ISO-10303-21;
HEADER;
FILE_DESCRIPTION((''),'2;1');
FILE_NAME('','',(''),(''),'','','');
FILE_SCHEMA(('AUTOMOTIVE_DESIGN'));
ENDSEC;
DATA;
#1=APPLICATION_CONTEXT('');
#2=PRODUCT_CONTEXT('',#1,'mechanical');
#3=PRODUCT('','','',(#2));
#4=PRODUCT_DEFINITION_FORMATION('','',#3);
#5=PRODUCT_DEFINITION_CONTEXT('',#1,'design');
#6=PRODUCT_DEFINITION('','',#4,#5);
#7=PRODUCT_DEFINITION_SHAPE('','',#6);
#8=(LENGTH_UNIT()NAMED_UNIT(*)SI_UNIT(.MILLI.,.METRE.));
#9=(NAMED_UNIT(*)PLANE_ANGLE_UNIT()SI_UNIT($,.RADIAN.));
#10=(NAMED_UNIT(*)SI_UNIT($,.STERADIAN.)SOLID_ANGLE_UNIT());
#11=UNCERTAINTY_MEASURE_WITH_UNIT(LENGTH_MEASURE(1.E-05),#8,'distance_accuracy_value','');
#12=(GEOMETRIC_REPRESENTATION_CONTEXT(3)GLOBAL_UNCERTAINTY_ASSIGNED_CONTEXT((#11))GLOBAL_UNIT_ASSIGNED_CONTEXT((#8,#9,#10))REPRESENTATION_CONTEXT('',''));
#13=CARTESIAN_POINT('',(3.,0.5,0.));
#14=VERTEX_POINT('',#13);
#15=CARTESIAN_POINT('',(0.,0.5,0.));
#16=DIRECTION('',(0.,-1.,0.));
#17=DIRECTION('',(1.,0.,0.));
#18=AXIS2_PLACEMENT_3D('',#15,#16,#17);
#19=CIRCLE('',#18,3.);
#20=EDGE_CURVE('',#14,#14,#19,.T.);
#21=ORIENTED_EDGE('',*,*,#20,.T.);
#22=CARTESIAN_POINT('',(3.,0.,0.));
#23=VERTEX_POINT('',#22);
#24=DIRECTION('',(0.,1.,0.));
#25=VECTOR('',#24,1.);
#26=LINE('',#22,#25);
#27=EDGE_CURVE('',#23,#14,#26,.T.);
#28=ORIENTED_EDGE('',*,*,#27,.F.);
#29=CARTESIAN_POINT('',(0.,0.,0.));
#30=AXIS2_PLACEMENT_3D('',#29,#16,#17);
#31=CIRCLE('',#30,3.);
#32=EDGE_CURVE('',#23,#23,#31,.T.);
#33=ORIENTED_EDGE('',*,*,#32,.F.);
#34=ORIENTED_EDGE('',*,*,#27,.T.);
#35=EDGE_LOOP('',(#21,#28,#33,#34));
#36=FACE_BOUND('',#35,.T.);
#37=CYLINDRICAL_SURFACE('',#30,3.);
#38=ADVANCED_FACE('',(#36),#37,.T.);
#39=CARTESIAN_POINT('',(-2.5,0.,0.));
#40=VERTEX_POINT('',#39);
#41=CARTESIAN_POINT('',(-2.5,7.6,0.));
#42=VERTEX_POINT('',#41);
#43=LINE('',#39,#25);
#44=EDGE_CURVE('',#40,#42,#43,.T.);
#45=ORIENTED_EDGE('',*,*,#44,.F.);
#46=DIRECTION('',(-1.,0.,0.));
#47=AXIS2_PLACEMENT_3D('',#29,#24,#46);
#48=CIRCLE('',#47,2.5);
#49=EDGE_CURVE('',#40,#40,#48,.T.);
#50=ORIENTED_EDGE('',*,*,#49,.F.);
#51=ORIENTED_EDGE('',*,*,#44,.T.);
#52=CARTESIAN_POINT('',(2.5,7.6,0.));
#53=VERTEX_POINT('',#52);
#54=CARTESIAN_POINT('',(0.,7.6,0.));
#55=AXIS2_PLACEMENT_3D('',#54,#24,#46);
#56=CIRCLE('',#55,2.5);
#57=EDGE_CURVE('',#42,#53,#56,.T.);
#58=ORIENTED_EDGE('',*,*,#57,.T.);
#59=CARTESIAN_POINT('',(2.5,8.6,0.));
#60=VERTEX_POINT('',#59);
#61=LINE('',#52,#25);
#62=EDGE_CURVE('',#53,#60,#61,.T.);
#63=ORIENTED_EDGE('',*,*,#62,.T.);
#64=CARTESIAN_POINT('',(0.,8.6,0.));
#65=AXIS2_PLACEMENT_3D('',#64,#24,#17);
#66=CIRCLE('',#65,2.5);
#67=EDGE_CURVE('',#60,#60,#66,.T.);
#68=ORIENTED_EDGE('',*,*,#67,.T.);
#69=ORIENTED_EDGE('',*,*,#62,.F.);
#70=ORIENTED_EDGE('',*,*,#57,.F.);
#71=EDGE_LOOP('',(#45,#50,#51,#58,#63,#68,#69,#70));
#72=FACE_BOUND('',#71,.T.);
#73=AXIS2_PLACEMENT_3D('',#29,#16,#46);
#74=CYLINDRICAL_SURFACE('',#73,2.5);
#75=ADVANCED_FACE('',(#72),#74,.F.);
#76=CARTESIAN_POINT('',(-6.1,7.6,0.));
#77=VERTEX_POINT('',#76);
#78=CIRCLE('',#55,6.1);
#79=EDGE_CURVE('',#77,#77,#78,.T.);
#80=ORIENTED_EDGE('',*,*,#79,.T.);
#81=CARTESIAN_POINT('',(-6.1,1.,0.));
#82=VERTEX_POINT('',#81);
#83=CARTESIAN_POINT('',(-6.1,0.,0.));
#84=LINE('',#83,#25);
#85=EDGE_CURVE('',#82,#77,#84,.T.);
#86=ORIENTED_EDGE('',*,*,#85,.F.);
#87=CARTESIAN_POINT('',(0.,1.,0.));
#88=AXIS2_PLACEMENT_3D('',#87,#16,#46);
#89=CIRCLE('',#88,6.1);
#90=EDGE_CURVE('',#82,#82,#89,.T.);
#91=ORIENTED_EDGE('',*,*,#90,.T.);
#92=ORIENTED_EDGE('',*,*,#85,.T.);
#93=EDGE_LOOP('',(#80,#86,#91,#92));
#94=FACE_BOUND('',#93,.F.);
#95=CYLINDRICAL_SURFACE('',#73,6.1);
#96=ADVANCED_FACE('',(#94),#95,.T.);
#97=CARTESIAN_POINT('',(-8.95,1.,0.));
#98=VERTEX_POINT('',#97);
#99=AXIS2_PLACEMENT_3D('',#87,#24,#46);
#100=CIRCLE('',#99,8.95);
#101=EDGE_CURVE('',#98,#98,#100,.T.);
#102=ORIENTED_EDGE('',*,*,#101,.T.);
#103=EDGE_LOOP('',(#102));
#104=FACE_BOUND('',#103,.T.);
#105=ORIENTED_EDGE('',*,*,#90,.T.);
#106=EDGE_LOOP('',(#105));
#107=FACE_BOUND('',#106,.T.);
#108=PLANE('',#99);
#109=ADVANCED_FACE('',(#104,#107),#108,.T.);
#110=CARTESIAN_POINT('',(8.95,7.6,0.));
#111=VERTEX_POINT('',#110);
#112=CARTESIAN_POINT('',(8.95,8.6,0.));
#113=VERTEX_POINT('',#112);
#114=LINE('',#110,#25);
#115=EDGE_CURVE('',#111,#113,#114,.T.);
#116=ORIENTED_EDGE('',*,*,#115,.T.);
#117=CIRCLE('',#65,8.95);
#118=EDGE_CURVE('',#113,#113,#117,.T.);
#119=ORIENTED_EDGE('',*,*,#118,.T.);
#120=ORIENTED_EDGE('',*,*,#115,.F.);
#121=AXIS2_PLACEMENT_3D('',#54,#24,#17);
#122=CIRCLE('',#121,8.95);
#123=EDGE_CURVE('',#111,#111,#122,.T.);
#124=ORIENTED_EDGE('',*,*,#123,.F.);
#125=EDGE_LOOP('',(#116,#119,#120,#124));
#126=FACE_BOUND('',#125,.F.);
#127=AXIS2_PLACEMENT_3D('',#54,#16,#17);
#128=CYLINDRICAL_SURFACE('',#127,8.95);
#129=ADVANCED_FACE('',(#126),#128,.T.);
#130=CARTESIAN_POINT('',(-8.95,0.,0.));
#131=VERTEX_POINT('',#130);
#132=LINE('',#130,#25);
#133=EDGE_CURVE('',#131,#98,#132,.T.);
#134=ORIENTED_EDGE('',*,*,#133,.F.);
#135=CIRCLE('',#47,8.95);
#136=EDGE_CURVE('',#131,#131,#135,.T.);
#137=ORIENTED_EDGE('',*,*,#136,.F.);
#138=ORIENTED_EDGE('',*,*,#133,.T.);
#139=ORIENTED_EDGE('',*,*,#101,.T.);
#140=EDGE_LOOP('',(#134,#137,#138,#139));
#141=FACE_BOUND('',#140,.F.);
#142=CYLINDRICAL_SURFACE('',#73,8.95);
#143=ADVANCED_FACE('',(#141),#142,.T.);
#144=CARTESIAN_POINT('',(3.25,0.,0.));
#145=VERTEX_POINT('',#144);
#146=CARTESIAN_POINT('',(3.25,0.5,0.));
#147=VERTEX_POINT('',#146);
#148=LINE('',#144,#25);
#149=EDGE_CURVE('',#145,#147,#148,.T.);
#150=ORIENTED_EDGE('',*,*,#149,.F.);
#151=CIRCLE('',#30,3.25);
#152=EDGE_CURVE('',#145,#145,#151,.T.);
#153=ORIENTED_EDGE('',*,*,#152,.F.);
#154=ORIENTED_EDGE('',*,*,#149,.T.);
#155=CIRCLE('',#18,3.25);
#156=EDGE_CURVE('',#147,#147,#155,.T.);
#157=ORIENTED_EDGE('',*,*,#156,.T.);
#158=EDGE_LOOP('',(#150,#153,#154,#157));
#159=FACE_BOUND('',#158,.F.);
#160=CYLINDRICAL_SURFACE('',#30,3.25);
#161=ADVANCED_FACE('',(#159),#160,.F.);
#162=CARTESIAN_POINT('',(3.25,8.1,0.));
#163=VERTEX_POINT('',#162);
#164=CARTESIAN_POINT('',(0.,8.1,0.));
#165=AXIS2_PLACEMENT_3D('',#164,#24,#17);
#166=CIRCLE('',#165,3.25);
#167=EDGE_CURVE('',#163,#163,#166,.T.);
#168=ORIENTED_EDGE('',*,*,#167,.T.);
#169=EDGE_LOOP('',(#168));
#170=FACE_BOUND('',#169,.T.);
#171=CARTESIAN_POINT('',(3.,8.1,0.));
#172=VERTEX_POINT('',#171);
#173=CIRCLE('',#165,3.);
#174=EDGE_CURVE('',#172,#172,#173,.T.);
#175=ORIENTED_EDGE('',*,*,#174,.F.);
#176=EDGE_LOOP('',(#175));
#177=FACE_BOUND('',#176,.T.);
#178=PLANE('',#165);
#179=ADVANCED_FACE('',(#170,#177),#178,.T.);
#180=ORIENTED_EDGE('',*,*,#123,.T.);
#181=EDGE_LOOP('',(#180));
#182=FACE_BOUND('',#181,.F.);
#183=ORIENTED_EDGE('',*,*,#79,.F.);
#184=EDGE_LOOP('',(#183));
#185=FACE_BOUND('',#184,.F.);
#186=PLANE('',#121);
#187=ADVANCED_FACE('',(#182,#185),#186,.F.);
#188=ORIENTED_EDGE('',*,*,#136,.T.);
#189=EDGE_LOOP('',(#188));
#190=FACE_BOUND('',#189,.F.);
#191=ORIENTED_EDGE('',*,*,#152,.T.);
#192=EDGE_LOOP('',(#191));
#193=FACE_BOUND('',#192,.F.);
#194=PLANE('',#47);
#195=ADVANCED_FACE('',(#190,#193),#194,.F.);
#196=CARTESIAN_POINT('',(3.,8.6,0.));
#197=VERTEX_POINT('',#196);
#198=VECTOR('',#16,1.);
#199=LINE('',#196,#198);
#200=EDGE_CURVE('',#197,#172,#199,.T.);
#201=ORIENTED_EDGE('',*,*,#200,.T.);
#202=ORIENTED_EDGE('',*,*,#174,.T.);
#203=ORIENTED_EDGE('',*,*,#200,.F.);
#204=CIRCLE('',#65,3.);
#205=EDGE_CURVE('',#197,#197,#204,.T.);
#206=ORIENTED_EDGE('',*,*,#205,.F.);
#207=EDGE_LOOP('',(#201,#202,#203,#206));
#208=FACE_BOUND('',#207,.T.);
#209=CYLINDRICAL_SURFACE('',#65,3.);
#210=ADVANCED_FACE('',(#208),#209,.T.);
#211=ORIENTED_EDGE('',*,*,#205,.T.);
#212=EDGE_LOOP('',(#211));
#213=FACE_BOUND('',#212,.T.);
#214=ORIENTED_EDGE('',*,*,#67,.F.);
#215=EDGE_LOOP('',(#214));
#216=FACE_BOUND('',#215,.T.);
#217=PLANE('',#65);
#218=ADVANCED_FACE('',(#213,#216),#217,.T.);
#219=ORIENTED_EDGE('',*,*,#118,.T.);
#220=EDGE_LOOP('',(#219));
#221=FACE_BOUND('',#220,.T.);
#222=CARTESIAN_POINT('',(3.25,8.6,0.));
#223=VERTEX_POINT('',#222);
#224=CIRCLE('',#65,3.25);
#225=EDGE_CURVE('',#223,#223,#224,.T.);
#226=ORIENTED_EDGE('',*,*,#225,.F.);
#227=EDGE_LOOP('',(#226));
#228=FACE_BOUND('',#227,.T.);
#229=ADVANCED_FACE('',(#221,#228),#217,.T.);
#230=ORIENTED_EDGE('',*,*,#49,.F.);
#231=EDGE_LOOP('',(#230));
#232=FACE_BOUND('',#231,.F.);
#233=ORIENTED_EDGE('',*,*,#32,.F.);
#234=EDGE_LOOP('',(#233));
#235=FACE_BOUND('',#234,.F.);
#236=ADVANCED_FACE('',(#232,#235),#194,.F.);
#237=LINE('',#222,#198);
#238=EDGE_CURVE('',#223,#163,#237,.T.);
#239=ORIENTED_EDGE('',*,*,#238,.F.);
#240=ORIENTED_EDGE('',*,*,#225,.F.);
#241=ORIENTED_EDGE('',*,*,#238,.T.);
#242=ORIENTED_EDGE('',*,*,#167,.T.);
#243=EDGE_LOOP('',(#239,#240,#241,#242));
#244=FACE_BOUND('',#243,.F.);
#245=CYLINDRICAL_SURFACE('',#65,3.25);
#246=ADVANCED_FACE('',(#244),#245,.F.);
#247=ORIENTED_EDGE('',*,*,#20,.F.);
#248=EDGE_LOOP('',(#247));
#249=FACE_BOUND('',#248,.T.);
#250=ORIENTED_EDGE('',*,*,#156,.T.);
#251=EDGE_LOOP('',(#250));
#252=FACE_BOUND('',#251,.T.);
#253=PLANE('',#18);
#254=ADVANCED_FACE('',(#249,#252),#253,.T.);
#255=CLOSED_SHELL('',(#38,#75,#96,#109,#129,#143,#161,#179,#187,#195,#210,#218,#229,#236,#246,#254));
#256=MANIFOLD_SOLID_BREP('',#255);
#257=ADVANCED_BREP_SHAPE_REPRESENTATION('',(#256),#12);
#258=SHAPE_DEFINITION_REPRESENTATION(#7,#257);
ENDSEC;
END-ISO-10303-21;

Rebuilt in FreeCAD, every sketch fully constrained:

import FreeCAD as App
import Part
import Sketcher

doc = App.newDocument("Part")
body = doc.addObject("PartDesign::Body", "Body")

sketch1 = doc.addObject("Sketcher::SketchObject", "Sketch")
body.addObject(sketch1)
sketch1.AttachmentSupport = (doc.XZ_Plane, [""])
sketch1.MapMode = "FlatFace"
sketch1.addGeometry(Part.Circle(App.Vector(0, 0, 0), App.Vector(0, 0, 1), 8.95), False)
sketch1.addGeometry(Part.Circle(App.Vector(0, 0, 0), App.Vector(0, 0, 1), 2.5), False)
sketch1.addConstraint(Sketcher.Constraint("Coincident", 0, 3, -1, 1))
sketch1.addConstraint(Sketcher.Constraint("Coincident", 1, 3, -1, 1))
sketch1.addConstraint(Sketcher.Constraint("Diameter", 1, 5.0))
sketch1.addConstraint(Sketcher.Constraint("Diameter", 0, 17.9))
pad1 = doc.addObject("PartDesign::Pad", "Pad")
body.addObject(pad1)
pad1.Profile = sketch1
pad1.Length = 1
pad1.Reversed = True

sketch2 = doc.addObject("Sketcher::SketchObject", "Sketch001")
body.addObject(sketch2)
sketch2.AttachmentSupport = (doc.XZ_Plane, [""])
sketch2.MapMode = "FlatFace"
sketch2.addGeometry(Part.Circle(App.Vector(0, 0, 0), App.Vector(0, 0, 1), 6.1), False)
sketch2.addGeometry(Part.Circle(App.Vector(0, 0, 0), App.Vector(0, 0, 1), 2.5), False)
sketch2.addConstraint(Sketcher.Constraint("Coincident", 0, 3, -1, 1))
sketch2.addConstraint(Sketcher.Constraint("Coincident", 1, 3, -1, 1))
sketch2.addConstraint(Sketcher.Constraint("Diameter", 1, 5.0))
sketch2.addConstraint(Sketcher.Constraint("Diameter", 0, 12.2))
pad2 = doc.addObject("PartDesign::Pad", "Pad001")
body.addObject(pad2)
pad2.Profile = sketch2
pad2.Length = 7.6
pad2.Reversed = True

sketch3 = doc.addObject("Sketcher::SketchObject", "Sketch002")
body.addObject(sketch3)
sketch3.AttachmentSupport = (doc.XZ_Plane, [""])
sketch3.MapMode = "FlatFace"
sketch3.AttachmentOffset = App.Placement(App.Vector(0, 0, -7.6), App.Rotation())
sketch3.addGeometry(Part.Circle(App.Vector(0, 0, 0), App.Vector(0, 0, 1), 8.95), False)
sketch3.addGeometry(Part.Circle(App.Vector(0, 0, 0), App.Vector(0, 0, 1), 2.5), False)
sketch3.addConstraint(Sketcher.Constraint("Coincident", 0, 3, -1, 1))
sketch3.addConstraint(Sketcher.Constraint("Coincident", 1, 3, -1, 1))
sketch3.addConstraint(Sketcher.Constraint("Diameter", 1, 5.0))
sketch3.addConstraint(Sketcher.Constraint("Diameter", 0, 17.9))
pad3 = doc.addObject("PartDesign::Pad", "Pad002")
body.addObject(pad3)
pad3.Profile = sketch3
pad3.Length = 1
pad3.Reversed = True

sketch4 = doc.addObject("Sketcher::SketchObject", "Sketch003")
body.addObject(sketch4)
sketch4.AttachmentSupport = (doc.XZ_Plane, [""])
sketch4.MapMode = "FlatFace"
sketch4.AttachmentOffset = App.Placement(App.Vector(0, 0, -8.6), App.Rotation())
sketch4.addGeometry(Part.Circle(App.Vector(0, 0, 0), App.Vector(0, 0, 1), 3.25), False)
sketch4.addGeometry(Part.Circle(App.Vector(0, 0, 0), App.Vector(0, 0, 1), 3), False)
sketch4.addConstraint(Sketcher.Constraint("Coincident", 0, 3, -1, 1))
sketch4.addConstraint(Sketcher.Constraint("Coincident", 1, 3, -1, 1))
sketch4.addConstraint(Sketcher.Constraint("Diameter", 1, 6.0))
sketch4.addConstraint(Sketcher.Constraint("Diameter", 0, 6.5))
pocket1 = doc.addObject("PartDesign::Pocket", "Pocket")
body.addObject(pocket1)
pocket1.Profile = sketch4
pocket1.Length = 0.5
pocket1.Reversed = True

sketch5 = doc.addObject("Sketcher::SketchObject", "Sketch004")
body.addObject(sketch5)
sketch5.AttachmentSupport = (doc.XZ_Plane, [""])
sketch5.MapMode = "FlatFace"
sketch5.addGeometry(Part.Circle(App.Vector(0, 0, 0), App.Vector(0, 0, 1), 3.25), False)
sketch5.addGeometry(Part.Circle(App.Vector(0, 0, 0), App.Vector(0, 0, 1), 3), False)
sketch5.addConstraint(Sketcher.Constraint("Coincident", 0, 3, -1, 1))
sketch5.addConstraint(Sketcher.Constraint("Coincident", 1, 3, -1, 1))
sketch5.addConstraint(Sketcher.Constraint("Diameter", 1, 6.0))
sketch5.addConstraint(Sketcher.Constraint("Diameter", 0, 6.5))
pocket2 = doc.addObject("PartDesign::Pocket", "Pocket001")
body.addObject(pocket2)
pocket2.Profile = sketch5
pocket2.Length = 0.5

doc.recompute()
